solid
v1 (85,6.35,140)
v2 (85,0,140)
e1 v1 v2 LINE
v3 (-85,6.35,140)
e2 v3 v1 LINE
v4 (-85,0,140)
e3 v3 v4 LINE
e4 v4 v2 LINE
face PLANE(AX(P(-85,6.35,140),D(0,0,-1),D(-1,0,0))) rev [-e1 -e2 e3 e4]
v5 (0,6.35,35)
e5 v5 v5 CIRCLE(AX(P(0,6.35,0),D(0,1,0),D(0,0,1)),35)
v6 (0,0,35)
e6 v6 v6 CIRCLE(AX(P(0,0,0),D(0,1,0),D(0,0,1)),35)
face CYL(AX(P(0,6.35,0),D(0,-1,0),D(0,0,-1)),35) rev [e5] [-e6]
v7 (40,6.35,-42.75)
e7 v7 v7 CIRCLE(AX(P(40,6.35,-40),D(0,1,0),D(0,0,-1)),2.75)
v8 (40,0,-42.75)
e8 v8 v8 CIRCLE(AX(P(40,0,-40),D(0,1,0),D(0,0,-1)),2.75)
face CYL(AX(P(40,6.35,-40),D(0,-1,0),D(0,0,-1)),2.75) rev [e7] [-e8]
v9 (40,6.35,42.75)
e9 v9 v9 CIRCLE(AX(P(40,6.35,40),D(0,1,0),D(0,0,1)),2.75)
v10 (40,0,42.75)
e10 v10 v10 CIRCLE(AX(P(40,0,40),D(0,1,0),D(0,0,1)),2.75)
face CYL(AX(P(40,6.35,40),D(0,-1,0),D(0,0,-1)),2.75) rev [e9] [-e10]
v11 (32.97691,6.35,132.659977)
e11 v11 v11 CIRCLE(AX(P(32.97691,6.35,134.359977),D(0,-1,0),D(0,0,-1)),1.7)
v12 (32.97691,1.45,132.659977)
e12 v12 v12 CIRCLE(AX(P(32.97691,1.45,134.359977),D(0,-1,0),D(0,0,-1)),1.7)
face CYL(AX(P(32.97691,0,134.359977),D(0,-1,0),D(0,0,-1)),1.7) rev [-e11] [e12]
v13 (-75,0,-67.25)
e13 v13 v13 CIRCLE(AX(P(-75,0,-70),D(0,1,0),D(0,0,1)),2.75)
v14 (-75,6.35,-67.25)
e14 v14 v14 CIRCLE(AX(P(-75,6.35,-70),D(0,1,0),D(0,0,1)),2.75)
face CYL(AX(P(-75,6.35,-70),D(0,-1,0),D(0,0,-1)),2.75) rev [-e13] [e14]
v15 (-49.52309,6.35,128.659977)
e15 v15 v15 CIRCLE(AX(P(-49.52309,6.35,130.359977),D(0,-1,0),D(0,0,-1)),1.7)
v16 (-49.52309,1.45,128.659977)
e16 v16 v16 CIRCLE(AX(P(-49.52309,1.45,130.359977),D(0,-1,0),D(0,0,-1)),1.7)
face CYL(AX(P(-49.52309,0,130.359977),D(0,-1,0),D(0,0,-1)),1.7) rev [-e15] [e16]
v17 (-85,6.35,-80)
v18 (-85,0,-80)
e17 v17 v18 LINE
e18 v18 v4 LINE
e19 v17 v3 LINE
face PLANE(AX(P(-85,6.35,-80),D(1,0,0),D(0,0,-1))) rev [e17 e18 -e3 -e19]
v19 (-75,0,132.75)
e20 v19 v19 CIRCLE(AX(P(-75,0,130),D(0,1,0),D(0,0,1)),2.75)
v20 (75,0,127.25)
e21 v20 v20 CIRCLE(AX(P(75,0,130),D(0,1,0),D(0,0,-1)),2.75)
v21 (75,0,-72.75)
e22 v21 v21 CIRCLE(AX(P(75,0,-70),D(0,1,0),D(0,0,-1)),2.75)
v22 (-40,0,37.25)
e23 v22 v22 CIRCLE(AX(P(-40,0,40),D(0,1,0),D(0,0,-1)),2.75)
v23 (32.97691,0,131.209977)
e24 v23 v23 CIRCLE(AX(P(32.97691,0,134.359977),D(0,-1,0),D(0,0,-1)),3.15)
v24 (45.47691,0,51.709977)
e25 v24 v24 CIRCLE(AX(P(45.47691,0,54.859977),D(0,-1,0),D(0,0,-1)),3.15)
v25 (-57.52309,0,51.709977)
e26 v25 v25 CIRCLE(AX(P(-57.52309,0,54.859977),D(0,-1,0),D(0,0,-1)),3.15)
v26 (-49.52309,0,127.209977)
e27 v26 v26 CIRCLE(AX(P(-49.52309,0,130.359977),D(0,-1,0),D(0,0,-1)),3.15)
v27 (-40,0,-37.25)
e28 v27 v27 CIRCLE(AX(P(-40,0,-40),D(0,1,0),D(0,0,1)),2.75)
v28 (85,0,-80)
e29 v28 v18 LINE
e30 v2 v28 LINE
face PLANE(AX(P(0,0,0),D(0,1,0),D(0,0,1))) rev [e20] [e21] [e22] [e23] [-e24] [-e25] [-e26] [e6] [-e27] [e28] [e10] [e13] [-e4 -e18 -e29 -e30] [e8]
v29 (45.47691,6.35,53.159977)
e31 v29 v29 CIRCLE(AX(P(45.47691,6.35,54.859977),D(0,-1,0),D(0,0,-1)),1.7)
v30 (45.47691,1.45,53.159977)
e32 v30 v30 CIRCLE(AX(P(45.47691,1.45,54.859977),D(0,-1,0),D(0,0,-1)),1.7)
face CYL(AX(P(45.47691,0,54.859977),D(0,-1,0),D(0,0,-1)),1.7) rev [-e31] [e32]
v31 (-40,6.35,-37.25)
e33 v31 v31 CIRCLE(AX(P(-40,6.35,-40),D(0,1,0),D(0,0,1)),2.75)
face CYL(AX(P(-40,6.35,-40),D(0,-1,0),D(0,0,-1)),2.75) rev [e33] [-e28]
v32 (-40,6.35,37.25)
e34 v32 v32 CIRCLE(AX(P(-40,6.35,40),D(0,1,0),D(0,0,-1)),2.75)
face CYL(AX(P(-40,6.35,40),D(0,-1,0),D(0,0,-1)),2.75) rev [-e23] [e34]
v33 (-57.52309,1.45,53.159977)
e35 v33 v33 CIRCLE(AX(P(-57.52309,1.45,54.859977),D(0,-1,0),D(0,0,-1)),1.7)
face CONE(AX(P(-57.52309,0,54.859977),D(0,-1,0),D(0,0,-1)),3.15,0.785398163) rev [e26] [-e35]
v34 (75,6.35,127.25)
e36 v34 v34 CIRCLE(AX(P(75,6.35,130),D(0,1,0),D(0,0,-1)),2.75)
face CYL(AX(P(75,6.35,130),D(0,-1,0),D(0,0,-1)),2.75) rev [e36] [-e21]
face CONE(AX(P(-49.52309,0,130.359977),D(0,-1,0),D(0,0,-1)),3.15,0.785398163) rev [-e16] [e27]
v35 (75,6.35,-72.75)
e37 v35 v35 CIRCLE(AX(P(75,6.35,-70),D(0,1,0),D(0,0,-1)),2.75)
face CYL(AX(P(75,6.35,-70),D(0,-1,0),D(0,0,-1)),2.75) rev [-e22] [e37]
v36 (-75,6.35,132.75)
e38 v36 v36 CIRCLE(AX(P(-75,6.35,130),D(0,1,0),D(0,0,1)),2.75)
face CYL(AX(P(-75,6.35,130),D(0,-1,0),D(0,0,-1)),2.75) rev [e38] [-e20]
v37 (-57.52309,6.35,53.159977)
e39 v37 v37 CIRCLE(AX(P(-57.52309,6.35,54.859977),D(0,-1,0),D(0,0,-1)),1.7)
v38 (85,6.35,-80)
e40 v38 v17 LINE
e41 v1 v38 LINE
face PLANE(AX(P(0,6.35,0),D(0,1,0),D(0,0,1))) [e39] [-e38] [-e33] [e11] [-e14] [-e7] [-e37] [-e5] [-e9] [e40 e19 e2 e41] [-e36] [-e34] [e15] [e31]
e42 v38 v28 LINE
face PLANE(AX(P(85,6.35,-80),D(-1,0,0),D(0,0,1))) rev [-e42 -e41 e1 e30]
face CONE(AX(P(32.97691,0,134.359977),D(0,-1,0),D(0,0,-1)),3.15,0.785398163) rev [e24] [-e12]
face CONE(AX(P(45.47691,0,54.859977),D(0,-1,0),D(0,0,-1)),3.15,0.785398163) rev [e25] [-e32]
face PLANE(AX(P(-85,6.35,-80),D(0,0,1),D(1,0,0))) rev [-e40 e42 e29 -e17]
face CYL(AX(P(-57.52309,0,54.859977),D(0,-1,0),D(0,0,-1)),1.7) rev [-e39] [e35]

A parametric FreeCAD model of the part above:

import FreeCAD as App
import Part
import Sketcher
from FreeCAD import Vector

doc = App.newDocument("Part")
body = doc.addObject("PartDesign::Body", "Body")

sketch1 = body.newObject("Sketcher::SketchObject", "Sketch")
sketch1.AttachmentSupport = (doc.getObject("XZ_Plane"), [""])
sketch1.MapMode = "FlatFace"
sketch1.addGeometry(Part.LineSegment(Vector(-85, -80, 0), Vector(-85, 140, 0)), False)
sketch1.addGeometry(Part.LineSegment(Vector(-85, 140, 0), Vector(85, 140, 0)), False)
sketch1.addGeometry(Part.LineSegment(Vector(85, 140, 0), Vector(85, -80, 0)), False)
sketch1.addGeometry(Part.LineSegment(Vector(85, -80, 0), Vector(-85, -80, 0)), False)
sketch1.addGeometry(Part.Circle(Vector(-75, 130, 0), Vector(0, 0, 1), 2.8), False)
sketch1.addGeometry(Part.Circle(Vector(-40, 40, 0), Vector(0, 0, 1), 2.8), False)
sketch1.addGeometry(Part.Circle(Vector(75, 130, 0), Vector(0, 0, 1), 2.8), False)
sketch1.addGeometry(Part.Circle(Vector(40, 40, 0), Vector(0, 0, 1), 2.8), False)
sketch1.addGeometry(Part.Circle(Vector(-40, -40, 0), Vector(0, 0, 1), 2.8), False)
sketch1.addGeometry(Part.Circle(Vector(-75, -70, 0), Vector(0, 0, 1), 2.8), False)
sketch1.addGeometry(Part.Circle(Vector(0, 0, 0), Vector(0, 0, 1), 35), False)
sketch1.addGeometry(Part.Circle(Vector(40, -40, 0), Vector(0, 0, 1), 2.8), False)
sketch1.addGeometry(Part.Circle(Vector(75, -70, 0), Vector(0, 0, 1), 2.8), False)
sketch1.addConstraint(Sketcher.Constraint("Coincident", 0, 2, 1, 1))
sketch1.addConstraint(Sketcher.Constraint("Coincident", 1, 2, 2, 1))
sketch1.addConstraint(Sketcher.Constraint("Coincident", 2, 2, 3, 1))
sketch1.addConstraint(Sketcher.Constraint("Coincident", 3, 2, 0, 1))
sketch1.addConstraint(Sketcher.Constraint("Vertical", 0))
sketch1.addConstraint(Sketcher.Constraint("Horizontal", 1))
sketch1.addConstraint(Sketcher.Constraint("Vertical", 2))
sketch1.addConstraint(Sketcher.Constraint("Horizontal", 3))
sketch1.addConstraint(Sketcher.Constraint("Coincident", 10, 3, -1, 1))
sketch1.addConstraint(Sketcher.Constraint("Equal", 4, 5))
sketch1.addConstraint(Sketcher.Constraint("Equal", 5, 6))
sketch1.addConstraint(Sketcher.Constraint("Equal", 6, 7))
sketch1.addConstraint(Sketcher.Constraint("Equal", 7, 8))
sketch1.addConstraint(Sketcher.Constraint("Equal", 8, 9))
sketch1.addConstraint(Sketcher.Constraint("Equal", 9, 11))
sketch1.addConstraint(Sketcher.Constraint("Equal", 11, 12))
sketch1.addConstraint(Sketcher.Constraint("Symmetric", 7, 3, 8, 3, -1, 1))
sketch1.addConstraint(Sketcher.Constraint("Symmetric", 5, 3, 11, 3, -1, 1))
sketch1.addConstraint(Sketcher.Constraint("Symmetric", 4, 3, 6, 3, -2))
sketch1.addConstraint(Sketcher.Constraint("Symmetric", 5, 3, 7, 3, -2))
sketch1.addConstraint(Sketcher.Constraint("Symmetric", 9, 3, 12, 3, -2))
sketch1.addConstraint(Sketcher.Constraint("Vertical", 4, 3, 9, 3))
sketch1.addConstraint(Sketcher.Constraint("Diameter", 10, 70.0))
sketch1.addConstraint(Sketcher.Constraint("Diameter", 4, 5.5))
sketch1.addConstraint(Sketcher.Constraint("DistanceX", 1, 1, 1, 2, 170.0))
sketch1.addConstraint(Sketcher.Constraint("DistanceY", 0, 1, 0, 2, 220.0))
sketch1.addConstraint(Sketcher.Constraint("DistanceX", 4, 3, -1, 1, 75.0))
sketch1.addConstraint(Sketcher.Constraint("DistanceY", -1, 1, 4, 3, 130.0))
sketch1.addConstraint(Sketcher.Constraint("DistanceX", 5, 3, -1, 1, 40.0))
sketch1.addConstraint(Sketcher.Constraint("DistanceY", -1, 1, 5, 3, 40.0))
sketch1.addConstraint(Sketcher.Constraint("DistanceY", 9, 3, -1, 1, 70.0))
sketch1.addConstraint(Sketcher.Constraint("DistanceX", 0, 2, -1, 1, 85.0))
sketch1.addConstraint(Sketcher.Constraint("DistanceY", -1, 1, 0, 2, 140.0))
pad1 = body.newObject("PartDesign::Pad", "Pad")
pad1.Profile = sketch1
pad1.Length = 6.35
pad1.Reversed = True

sketch2 = body.newObject("Sketcher::SketchObject", "Sketch001")
sketch2.AttachmentSupport = (doc.getObject("XZ_Plane"), [""])
sketch2.MapMode = "FlatFace"
sketch2.addGeometry(Part.Circle(Vector(-57.5, 54.9, 0), Vector(0, 0, 1), 1.7), False)
sketch2.addGeometry(Part.Circle(Vector(45.5, 54.9, 0), Vector(0, 0, 1), 1.7), False)
sketch2.addGeometry(Part.Circle(Vector(33, 134.4, 0), Vector(0, 0, 1), 1.7), False)
sketch2.addGeometry(Part.Circle(Vector(-49.5, 130.4, 0), Vector(0, 0, 1), 1.7), False)
sketch2.addConstraint(Sketcher.Constraint("Equal", 0, 1))
sketch2.addConstraint(Sketcher.Constraint("Equal", 1, 2))
sketch2.addConstraint(Sketcher.Constraint("Equal", 2, 3))
sketch2.addConstraint(Sketcher.Constraint("Horizontal", 0, 3, 1, 3))
sketch2.addConstraint(Sketcher.Constraint("Diameter", 0, 3.4))
sketch2.addConstraint(Sketcher.Constraint("DistanceX", 0, 3, 1, 3, 103.0))
sketch2.addConstraint(Sketcher.Constraint("DistanceX", 0, 3, 3, 3, 8.0))
sketch2.addConstraint(Sketcher.Constraint("DistanceY", 3, 3, 2, 3, 4.0))
sketch2.addConstraint(Sketcher.Constraint("DistanceX", 2, 3, 1, 3, 12.5))
sketch2.addConstraint(Sketcher.Constraint("DistanceY", 1, 3, 2, 3, 79.5))
sketch2.addConstraint(Sketcher.Constraint("DistanceX", 0, 3, -1, 1, 57.52309))
sketch2.addConstraint(Sketcher.Constraint("DistanceY", -1, 1, 0, 3, 54.859977))
doc.recompute()
hole = body.newObject("PartDesign::Hole", "Hole")
hole.Profile = sketch2
hole.ThreadType = "None"
hole.Diameter = 3.4
hole.DepthType = "ThroughAll"
hole.HoleCutType = "Countersink"
hole.HoleCutDiameter = 6.3
hole.HoleCutCountersinkAngle = 90

doc.recompute()
